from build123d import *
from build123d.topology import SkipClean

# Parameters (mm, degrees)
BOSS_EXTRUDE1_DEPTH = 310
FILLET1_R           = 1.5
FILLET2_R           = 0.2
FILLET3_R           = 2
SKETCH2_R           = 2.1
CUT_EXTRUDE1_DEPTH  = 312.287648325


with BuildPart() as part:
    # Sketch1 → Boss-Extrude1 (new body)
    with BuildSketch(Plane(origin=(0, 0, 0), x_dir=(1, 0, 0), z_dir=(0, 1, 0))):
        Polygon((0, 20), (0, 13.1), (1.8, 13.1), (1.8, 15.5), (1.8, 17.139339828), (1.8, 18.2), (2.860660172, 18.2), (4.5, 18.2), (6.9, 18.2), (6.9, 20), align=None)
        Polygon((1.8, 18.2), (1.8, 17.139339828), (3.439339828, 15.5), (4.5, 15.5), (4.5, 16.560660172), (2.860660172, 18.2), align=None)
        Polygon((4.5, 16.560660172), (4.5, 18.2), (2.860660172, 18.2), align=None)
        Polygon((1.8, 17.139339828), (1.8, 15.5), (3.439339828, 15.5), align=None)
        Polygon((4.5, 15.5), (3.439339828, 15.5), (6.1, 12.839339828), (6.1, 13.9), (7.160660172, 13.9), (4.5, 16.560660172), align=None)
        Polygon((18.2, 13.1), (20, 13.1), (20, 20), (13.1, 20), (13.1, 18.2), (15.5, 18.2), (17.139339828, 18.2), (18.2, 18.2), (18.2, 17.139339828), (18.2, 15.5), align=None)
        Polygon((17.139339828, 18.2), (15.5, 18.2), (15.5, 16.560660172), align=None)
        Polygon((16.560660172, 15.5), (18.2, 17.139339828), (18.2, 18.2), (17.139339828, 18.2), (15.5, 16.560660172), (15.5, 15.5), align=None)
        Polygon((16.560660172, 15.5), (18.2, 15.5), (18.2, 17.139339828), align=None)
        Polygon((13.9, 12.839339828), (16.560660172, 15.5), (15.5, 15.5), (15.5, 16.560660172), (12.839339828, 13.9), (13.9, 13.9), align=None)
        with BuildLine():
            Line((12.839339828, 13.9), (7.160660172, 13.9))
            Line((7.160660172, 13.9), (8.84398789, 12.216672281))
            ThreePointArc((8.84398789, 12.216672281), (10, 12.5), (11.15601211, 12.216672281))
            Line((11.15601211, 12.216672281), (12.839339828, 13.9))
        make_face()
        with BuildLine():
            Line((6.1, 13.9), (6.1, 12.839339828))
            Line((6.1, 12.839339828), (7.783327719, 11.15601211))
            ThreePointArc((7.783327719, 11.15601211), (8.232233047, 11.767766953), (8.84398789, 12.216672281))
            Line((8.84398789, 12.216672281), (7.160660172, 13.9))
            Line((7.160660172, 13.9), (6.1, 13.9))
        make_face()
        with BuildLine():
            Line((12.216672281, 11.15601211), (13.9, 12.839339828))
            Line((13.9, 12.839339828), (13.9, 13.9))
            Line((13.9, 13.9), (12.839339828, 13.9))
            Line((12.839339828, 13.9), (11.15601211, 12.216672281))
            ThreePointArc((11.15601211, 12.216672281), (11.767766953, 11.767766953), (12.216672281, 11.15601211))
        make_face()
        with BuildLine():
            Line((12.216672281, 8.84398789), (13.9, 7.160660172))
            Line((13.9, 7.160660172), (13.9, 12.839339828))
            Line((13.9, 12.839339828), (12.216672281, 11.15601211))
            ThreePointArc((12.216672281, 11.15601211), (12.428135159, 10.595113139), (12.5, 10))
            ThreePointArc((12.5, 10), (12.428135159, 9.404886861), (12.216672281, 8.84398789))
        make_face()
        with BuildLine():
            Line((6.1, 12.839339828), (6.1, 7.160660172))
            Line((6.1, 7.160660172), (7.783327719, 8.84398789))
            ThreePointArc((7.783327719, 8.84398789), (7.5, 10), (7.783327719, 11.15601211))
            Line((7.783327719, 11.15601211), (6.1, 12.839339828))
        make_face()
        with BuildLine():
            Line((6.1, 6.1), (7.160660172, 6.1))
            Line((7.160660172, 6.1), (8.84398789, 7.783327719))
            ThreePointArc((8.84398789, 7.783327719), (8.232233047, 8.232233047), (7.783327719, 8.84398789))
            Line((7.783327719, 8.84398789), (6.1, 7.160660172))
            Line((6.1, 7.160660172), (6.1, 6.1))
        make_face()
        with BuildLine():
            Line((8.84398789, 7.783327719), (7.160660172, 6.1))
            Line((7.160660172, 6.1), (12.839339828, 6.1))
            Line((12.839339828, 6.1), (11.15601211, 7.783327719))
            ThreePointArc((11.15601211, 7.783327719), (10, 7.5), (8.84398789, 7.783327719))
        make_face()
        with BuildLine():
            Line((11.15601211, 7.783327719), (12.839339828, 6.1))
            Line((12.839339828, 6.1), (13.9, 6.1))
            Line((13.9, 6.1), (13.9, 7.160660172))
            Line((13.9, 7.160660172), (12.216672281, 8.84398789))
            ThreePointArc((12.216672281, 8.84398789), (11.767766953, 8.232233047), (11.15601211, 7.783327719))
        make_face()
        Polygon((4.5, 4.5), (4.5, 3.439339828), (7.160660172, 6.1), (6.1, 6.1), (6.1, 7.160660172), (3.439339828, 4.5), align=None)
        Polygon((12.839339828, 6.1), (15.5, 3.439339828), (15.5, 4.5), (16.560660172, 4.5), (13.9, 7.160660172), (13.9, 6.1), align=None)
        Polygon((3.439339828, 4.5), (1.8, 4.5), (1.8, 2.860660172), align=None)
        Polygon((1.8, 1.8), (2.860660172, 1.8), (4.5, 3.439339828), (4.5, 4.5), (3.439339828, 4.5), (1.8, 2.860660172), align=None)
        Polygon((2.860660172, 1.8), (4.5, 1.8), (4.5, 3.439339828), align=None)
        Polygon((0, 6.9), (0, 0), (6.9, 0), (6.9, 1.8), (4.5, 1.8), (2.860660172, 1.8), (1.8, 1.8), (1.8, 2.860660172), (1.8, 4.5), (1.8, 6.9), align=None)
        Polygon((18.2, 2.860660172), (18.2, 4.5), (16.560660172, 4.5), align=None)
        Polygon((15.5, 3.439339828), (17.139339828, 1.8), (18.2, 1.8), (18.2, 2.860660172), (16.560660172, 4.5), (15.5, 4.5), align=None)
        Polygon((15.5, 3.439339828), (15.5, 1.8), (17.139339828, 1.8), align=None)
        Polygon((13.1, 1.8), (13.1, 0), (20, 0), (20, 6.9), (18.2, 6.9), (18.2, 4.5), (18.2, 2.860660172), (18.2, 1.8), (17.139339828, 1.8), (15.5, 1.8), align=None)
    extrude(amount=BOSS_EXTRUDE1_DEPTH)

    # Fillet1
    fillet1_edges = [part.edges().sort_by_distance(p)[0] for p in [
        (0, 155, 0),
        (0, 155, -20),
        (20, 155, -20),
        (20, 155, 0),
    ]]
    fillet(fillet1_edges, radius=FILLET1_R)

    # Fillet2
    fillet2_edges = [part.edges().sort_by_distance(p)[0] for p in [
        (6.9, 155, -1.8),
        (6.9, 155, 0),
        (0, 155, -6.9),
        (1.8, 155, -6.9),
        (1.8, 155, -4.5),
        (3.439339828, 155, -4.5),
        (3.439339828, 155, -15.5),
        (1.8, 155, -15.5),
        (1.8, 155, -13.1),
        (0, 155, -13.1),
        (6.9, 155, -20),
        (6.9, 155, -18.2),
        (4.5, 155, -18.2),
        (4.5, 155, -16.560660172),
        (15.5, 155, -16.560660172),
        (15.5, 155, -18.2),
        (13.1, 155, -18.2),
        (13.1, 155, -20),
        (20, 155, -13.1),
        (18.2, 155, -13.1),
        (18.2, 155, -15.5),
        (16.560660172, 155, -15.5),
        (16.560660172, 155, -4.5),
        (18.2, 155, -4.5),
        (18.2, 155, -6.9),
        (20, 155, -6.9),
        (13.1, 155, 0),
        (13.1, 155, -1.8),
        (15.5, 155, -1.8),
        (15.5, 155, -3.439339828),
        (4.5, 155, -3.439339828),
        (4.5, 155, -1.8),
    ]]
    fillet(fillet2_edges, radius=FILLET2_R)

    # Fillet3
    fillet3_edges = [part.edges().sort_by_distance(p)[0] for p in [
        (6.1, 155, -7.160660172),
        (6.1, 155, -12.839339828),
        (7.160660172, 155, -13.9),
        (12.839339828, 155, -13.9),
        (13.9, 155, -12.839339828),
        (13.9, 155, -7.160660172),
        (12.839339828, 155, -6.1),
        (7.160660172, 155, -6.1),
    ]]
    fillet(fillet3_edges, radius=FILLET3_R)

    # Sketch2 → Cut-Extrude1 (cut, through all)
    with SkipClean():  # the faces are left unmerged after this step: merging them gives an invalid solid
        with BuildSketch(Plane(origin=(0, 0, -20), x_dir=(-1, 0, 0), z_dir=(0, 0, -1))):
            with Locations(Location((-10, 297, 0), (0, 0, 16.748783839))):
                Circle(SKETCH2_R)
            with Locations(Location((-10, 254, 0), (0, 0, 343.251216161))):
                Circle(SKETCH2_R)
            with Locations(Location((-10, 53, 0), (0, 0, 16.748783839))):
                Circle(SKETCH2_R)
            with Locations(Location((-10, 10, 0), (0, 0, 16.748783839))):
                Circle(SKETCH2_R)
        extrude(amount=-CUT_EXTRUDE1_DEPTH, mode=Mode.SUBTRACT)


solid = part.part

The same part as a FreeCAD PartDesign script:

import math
import FreeCAD as App
import Part
import Sketcher

V = App.Vector
Q = App.Units.Quantity


def edges_at(feature, points):
    """Names of the edges that pass closest to the given points."""
    edges = feature.Shape.Edges
    near = lambda p: min(range(len(edges)), key=lambda i: edges[i].distToShape(Part.Vertex(*p))[0])
    return sorted({f"Edge{near(p) + 1}" for p in points})

doc = App.newDocument("Part")
params = doc.addObject("Spreadsheet::Sheet", "Params")
for row, (alias, value) in enumerate([
    ("sketch1_radius", "2.5 mm"),
    ("sketch1_width", "1.8 mm"),
    ("sketch1_width2", "6.9 mm"),
    ("sketch1_width3", "2.4 mm"),
    ("pad1_length", "310 mm"),
    ("fillet_radius", "1.5 mm"),
    ("fillet2_radius", "0.2 mm"),
    ("fillet3_radius", "2 mm"),
    ("sketch2_diameter", "4.2 mm"),
], start=1):
    params.set(f"A{row}", alias)
    params.set(f"B{row}", "=" + value)
    params.setAlias(f"B{row}", alias)

body = doc.addObject("PartDesign::Body", "Body")

# Sketch on XZ plane
sketch1 = doc.addObject("Sketcher::SketchObject", "Sketch")
body.addObject(sketch1)
sketch1.AttachmentSupport = (doc.XZ_Plane, [""])
sketch1.MapMode = "FlatFace"
sketch1.addGeometry(Part.LineSegment(V(0, -20, 0), V(0, -13.1, 0)), False)
sketch1.addGeometry(Part.LineSegment(V(0, -13.1, 0), V(1.8, -13.1, 0)), False)
sketch1.addGeometry(Part.LineSegment(V(1.8, -13.1, 0), V(1.8, -15.5, 0)), False)
sketch1.addGeometry(Part.LineSegment(V(1.8, -15.5, 0), V(3.4, -15.5, 0)), False)
sketch1.addGeometry(Part.LineSegment(V(3.4, -15.5, 0), V(6.1, -12.8, 0)), False)
sketch1.addGeometry(Part.LineSegment(V(6.1, -12.8, 0), V(6.1, -7.2, 0)), False)
sketch1.addGeometry(Part.LineSegment(V(6.1, -7.2, 0), V(3.4, -4.5, 0)), False)
sketch1.addGeometry(Part.LineSegment(V(3.4, -4.5, 0), V(1.8, -4.5, 0)), False)
sketch1.addGeometry(Part.LineSegment(V(1.8, -4.5, 0), V(1.8, -6.9, 0)), False)
sketch1.addGeometry(Part.LineSegment(V(1.8, -6.9, 0), V(0, -6.9, 0)), False)
sketch1.addGeometry(Part.LineSegment(V(0, -6.9, 0), V(0, 0, 0)), False)
sketch1.addGeometry(Part.LineSegment(V(0, 0, 0), V(6.9, 0, 0)), False)
sketch1.addGeometry(Part.LineSegment(V(6.9, 0, 0), V(6.9, -1.8, 0)), False)
sketch1.addGeometry(Part.LineSegment(V(6.9, -1.8, 0), V(4.5, -1.8, 0)), False)
sketch1.addGeometry(Part.LineSegment(V(4.5, -1.8, 0), V(4.5, -3.4, 0)), False)
sketch1.addGeometry(Part.LineSegment(V(4.5, -3.4, 0), V(7.2, -6.1, 0)), False)
sketch1.addGeometry(Part.LineSegment(V(7.2, -6.1, 0), V(12.8, -6.1, 0)), False)
sketch1.addGeometry(Part.LineSegment(V(12.8, -6.1, 0), V(15.5, -3.4, 0)), False)
sketch1.addGeometry(Part.LineSegment(V(15.5, -3.4, 0), V(15.5, -1.8, 0)), False)
sketch1.addGeometry(Part.LineSegment(V(15.5, -1.8, 0), V(13.1, -1.8, 0)), False)
sketch1.addGeometry(Part.LineSegment(V(13.1, -1.8, 0), V(13.1, 0, 0)), False)
sketch1.addGeometry(Part.LineSegment(V(13.1, 0, 0), V(20, 0, 0)), False)
sketch1.addGeometry(Part.LineSegment(V(20, 0, 0), V(20, -6.9, 0)), False)
sketch1.addGeometry(Part.LineSegment(V(20, -6.9, 0), V(18.2, -6.9, 0)), False)
sketch1.addGeometry(Part.LineSegment(V(18.2, -6.9, 0), V(18.2, -4.5, 0)), False)
sketch1.addGeometry(Part.LineSegment(V(18.2, -4.5, 0), V(16.6, -4.5, 0)), False)
sketch1.addGeometry(Part.LineSegment(V(16.6, -4.5, 0), V(13.9, -7.2, 0)), False)
sketch1.addGeometry(Part.LineSegment(V(13.9, -7.2, 0), V(13.9, -12.8, 0)), False)
sketch1.addGeometry(Part.LineSegment(V(13.9, -12.8, 0), V(16.6, -15.5, 0)), False)
sketch1.addGeometry(Part.LineSegment(V(16.6, -15.5, 0), V(18.2, -15.5, 0)), False)
sketch1.addGeometry(Part.LineSegment(V(18.2, -15.5, 0), V(18.2, -13.1, 0)), False)
sketch1.addGeometry(Part.LineSegment(V(18.2, -13.1, 0), V(20, -13.1, 0)), False)
sketch1.addGeometry(Part.LineSegment(V(20, -13.1, 0), V(20, -20, 0)), False)
sketch1.addGeometry(Part.LineSegment(V(20, -20, 0), V(13.1, -20, 0)), False)
sketch1.addGeometry(Part.LineSegment(V(13.1, -20, 0), V(13.1, -18.2, 0)), False)
sketch1.addGeometry(Part.LineSegment(V(13.1, -18.2, 0), V(15.5, -18.2, 0)), False)
sketch1.addGeometry(Part.LineSegment(V(15.5, -18.2, 0), V(15.5, -16.6, 0)), False)
sketch1.addGeometry(Part.LineSegment(V(15.5, -16.6, 0), V(12.8, -13.9, 0)), False)
sketch1.addGeometry(Part.LineSegment(V(12.8, -13.9, 0), V(7.2, -13.9, 0)), False)
sketch1.addGeometry(Part.LineSegment(V(7.2, -13.9, 0), V(4.5, -16.6, 0)), False)
sketch1.addGeometry(Part.LineSegment(V(4.5, -16.6, 0), V(4.5, -18.2, 0)), False)
sketch1.addGeometry(Part.LineSegment(V(4.5, -18.2, 0), V(6.9, -18.2, 0)), False)
sketch1.addGeometry(Part.LineSegment(V(6.9, -18.2, 0), V(6.9, -20, 0)), False)
sketch1.addGeometry(Part.LineSegment(V(6.9, -20, 0), V(0, -20, 0)), False)
sketch1.addGeometry(Part.ArcOfCircle(Part.Circle(V(10, -10, 0), V(0, 0, 1), 2.5), math.radians(62), math.radians(118)), False)
sketch1.addGeometry(Part.ArcOfCircle(Part.Circle(V(10, -10, 0), V(0, 0, 1), 2.5), math.radians(118), math.radians(152)), False)
sketch1.addGeometry(Part.ArcOfCircle(Part.Circle(V(10, -10, 0), V(0, 0, 1), 2.5), math.radians(152), math.radians(208)), False)
sketch1.addGeometry(Part.ArcOfCircle(Part.Circle(V(10, -10, 0), V(0, 0, 1), 2.5), math.radians(-152), math.radians(-118)), False)
sketch1.addGeometry(Part.ArcOfCircle(Part.Circle(V(10, -10, 0), V(0, 0, 1), 2.5), math.radians(-118), math.radians(-62)), False)
sketch1.addGeometry(Part.ArcOfCircle(Part.Circle(V(10, -10, 0), V(0, 0, 1), 2.5), math.radians(-62), math.radians(-28)), False)
sketch1.addGeometry(Part.ArcOfCircle(Part.Circle(V(10, -10, 0), V(0, 0, 1), 2.5), math.radians(-28), math.radians(0)), False)
sketch1.addGeometry(Part.ArcOfCircle(Part.Circle(V(10, -10, 0), V(0, 0, 1), 2.5), math.radians(0), math.radians(28)), False)
sketch1.addGeometry(Part.ArcOfCircle(Part.Circle(V(10, -10, 0), V(0, 0, 1), 2.5), math.radians(28), math.radians(62)), False)
sketch1.addConstraint(Sketcher.Constraint("Coincident", 0, 2, 1, 1))
sketch1.addConstraint(Sketcher.Constraint("Coincident", 1, 2, 2, 1))
sketch1.addConstraint(Sketcher.Constraint("Coincident", 2, 2, 3, 1))
sketch1.addConstraint(Sketcher.Constraint("Coincident", 3, 2, 4, 1))
sketch1.addConstraint(Sketcher.Constraint("Coincident", 4, 2, 5, 1))
sketch1.addConstraint(Sketcher.Constraint("Coincident", 5, 2, 6, 1))
sketch1.addConstraint(Sketcher.Constraint("Coincident", 6, 2, 7, 1))
sketch1.addConstraint(Sketcher.Constraint("Coincident", 7, 2, 8, 1))
sketch1.addConstraint(Sketcher.Constraint("Coincident", 8, 2, 9, 1))
sketch1.addConstraint(Sketcher.Constraint("Coincident", 9, 2, 10, 1))
sketch1.addConstraint(Sketcher.Constraint("Coincident", 10, 2, 11, 1))
sketch1.addConstraint(Sketcher.Constraint("Coincident", 11, 2, 12, 1))
sketch1.addConstraint(Sketcher.Constraint("Coincident", 12, 2, 13, 1))
sketch1.addConstraint(Sketcher.Constraint("Coincident", 13, 2, 14, 1))
sketch1.addConstraint(Sketcher.Constraint("Coincident", 14, 2, 15, 1))
sketch1.addConstraint(Sketcher.Constraint("Coincident", 15, 2, 16, 1))
sketch1.addConstraint(Sketcher.Constraint("Coincident", 16, 2, 17, 1))
sketch1.addConstraint(Sketcher.Constraint("Coincident", 17, 2, 18, 1))
sketch1.addConstraint(Sketcher.Constraint("Coincident", 18, 2, 19, 1))
sketch1.addConstraint(Sketcher.Constraint("Coincident", 19, 2, 20, 1))
sketch1.addConstraint(Sketcher.Constraint("Coincident", 20, 2, 21, 1))
sketch1.addConstraint(Sketcher.Constraint("Coincident", 21, 2, 22, 1))
sketch1.addConstraint(Sketcher.Constraint("Coincident", 22, 2, 23, 1))
sketch1.addConstraint(Sketcher.Constraint("Coincident", 23, 2, 24, 1))
sketch1.addConstraint(Sketcher.Constraint("Coincident", 24, 2, 25, 1))
sketch1.addConstraint(Sketcher.Constraint("Coincident", 25, 2, 26, 1))
sketch1.addConstraint(Sketcher.Constraint("Coincident", 26, 2, 27, 1))
sketch1.addConstraint(Sketcher.Constraint("Coincident", 27, 2, 28, 1))
sketch1.addConstraint(Sketcher.Constraint("Coincident", 28, 2, 29, 1))
sketch1.addConstraint(Sketcher.Constraint("Coincident", 29, 2, 30, 1))
sketch1.addConstraint(Sketcher.Constraint("Coincident", 30, 2, 31, 1))
sketch1.addConstraint(Sketcher.Constraint("Coincident", 31, 2, 32, 1))
sketch1.addConstraint(Sketcher.Constraint("Coincident", 32, 2, 33, 1))
sketch1.addConstraint(Sketcher.Constraint("Coincident", 33, 2, 34, 1))
sketch1.addConstraint(Sketcher.Constraint("Coincident", 34, 2, 35, 1))
sketch1.addConstraint(Sketcher.Constraint("Coincident", 35, 2, 36, 1))
sketch1.addConstraint(Sketcher.Constraint("Coincident", 36, 2, 37, 1))
sketch1.addConstraint(Sketcher.Constraint("Coincident", 37, 2, 38, 1))
sketch1.addConstraint(Sketcher.Constraint("Coincident", 38, 2, 39, 1))
sketch1.addConstraint(Sketcher.Constraint("Coincident", 39, 2, 40, 1))
sketch1.addConstraint(Sketcher.Constraint("Coincident", 40, 2, 41, 1))
sketch1.addConstraint(Sketcher.Constraint("Coincident", 41, 2, 42, 1))
sketch1.addConstraint(Sketcher.Constraint("Coincident", 42, 2, 43, 1))
sketch1.addConstraint(Sketcher.Constraint("Coincident", 43, 2, 0, 1))
sketch1.addConstraint(Sketcher.Constraint("Tangent", 44, 2, 45, 1))
sketch1.addConstraint(Sketcher.Constraint("Tangent", 45, 2, 46, 1))
sketch1.addConstraint(Sketcher.Constraint("Tangent", 46, 2, 47, 1))
sketch1.addConstraint(Sketcher.Constraint("Tangent", 47, 2, 48, 1))
sketch1.addConstraint(Sketcher.Constraint("Tangent", 48, 2, 49, 1))
sketch1.addConstraint(Sketcher.Constraint("Tangent", 49, 2, 50, 1))
sketch1.addConstraint(Sketcher.Constraint("Tangent", 50, 2, 51, 1))
sketch1.addConstraint(Sketcher.Constraint("Tangent", 51, 2, 52, 1))
sketch1.addConstraint(Sketcher.Constraint("Tangent", 52, 2, 44, 1))
sketch1.addConstraint(Sketcher.Constraint("Vertical", 0))
sketch1.addConstraint(Sketcher.Constraint("Horizontal", 1))
sketch1.addConstraint(Sketcher.Constraint("Vertical", 2))
sketch1.addConstraint(Sketcher.Constraint("Horizontal", 3))
sketch1.addConstraint(Sketcher.Constraint("Vertical", 5))
sketch1.addConstraint(Sketcher.Constraint("Horizontal", 7))
sketch1.addConstraint(Sketcher.Constraint("Vertical", 8))
sketch1.addConstraint(Sketcher.Constraint("Horizontal", 9))
sketch1.addConstraint(Sketcher.Constraint("Vertical", 10))
sketch1.addConstraint(Sketcher.Constraint("Horizontal", 11))
sketch1.addConstraint(Sketcher.Constraint("Vertical", 12))
sketch1.addConstraint(Sketcher.Constraint("Horizontal", 13))
sketch1.addConstraint(Sketcher.Constraint("Vertical", 14))
sketch1.addConstraint(Sketcher.Constraint("Horizontal", 16))
sketch1.addConstraint(Sketcher.Constraint("Vertical", 18))
sketch1.addConstraint(Sketcher.Constraint("Horizontal", 19))
sketch1.addConstraint(Sketcher.Constraint("Vertical", 20))
sketch1.addConstraint(Sketcher.Constraint("Horizontal", 21))
sketch1.addConstraint(Sketcher.Constraint("Vertical", 22))
sketch1.addConstraint(Sketcher.Constraint("Horizontal", 23))
sketch1.addConstraint(Sketcher.Constraint("Vertical", 24))
sketch1.addConstraint(Sketcher.Constraint("Horizontal", 25))
sketch1.addConstraint(Sketcher.Constraint("Vertical", 27))
sketch1.addConstraint(Sketcher.Constraint("Horizontal", 29))
sketch1.addConstraint(Sketcher.Constraint("Vertical", 30))
sketch1.addConstraint(Sketcher.Constraint("Horizontal", 31))
sketch1.addConstraint(Sketcher.Constraint("Vertical", 32))
sketch1.addConstraint(Sketcher.Constraint("Horizontal", 33))
sketch1.addConstraint(Sketcher.Constraint("Vertical", 34))
sketch1.addConstraint(Sketcher.Constraint("Horizontal", 35))
sketch1.addConstraint(Sketcher.Constraint("Vertical", 36))
sketch1.addConstraint(Sketcher.Constraint("Horizontal", 38))
sketch1.addConstraint(Sketcher.Constraint("Vertical", 40))
sketch1.addConstraint(Sketcher.Constraint("Horizontal", 41))
sketch1.addConstraint(Sketcher.Constraint("Vertical", 42))
sketch1.addConstraint(Sketcher.Constraint("Horizontal", 43))
sketch1.addConstraint(Sketcher.Constraint("Coincident", 10, 2, -1, 1))
sketch1.addConstraint(Sketcher.Constraint("Coincident", 46, 3, 44, 3))
sketch1.addConstraint(Sketcher.Constraint("Coincident", 48, 3, 44, 3))
sketch1.addConstraint(Sketcher.Constraint("Coincident", 50, 3, 44, 3))
sketch1.addConstraint(Sketcher.Constraint("PointOnObject", 0, 2, -2))
sketch1.addConstraint(Sketcher.Constraint("PointOnObject", 20, 2, -1))
sketch1.addConstraint(Sketcher.Constraint("Perpendicular", 4, 6))
sketch1.addConstraint(Sketcher.Constraint("Parallel", 6, 15))
sketch1.addConstraint(Sketcher.Constraint("Perpendicular", 15, 17))
sketch1.addConstraint(Sketcher.Constraint("Parallel", 17, 26))
sketch1.addConstraint(Sketcher.Constraint("Perpendicular", 26, 28))
sketch1.addConstraint(Sketcher.Constraint("Parallel", 28, 37))
sketch1.addConstraint(Sketcher.Constraint("Perpendicular", 37, 39))
sketch1.addConstraint(Sketcher.Constraint("Horizontal", 14, 2, 17, 2))
sketch1.addConstraint(Sketcher.Constraint("Horizontal", 13, 2, 18, 2))
sketch1.addConstraint(Sketcher.Constraint("Horizontal", 9, 2, 22, 2))
sketch1.addConstraint(Sketcher.Constraint("Horizontal", 7, 2, 24, 2))
sketch1.addConstraint(Sketcher.Constraint("Horizontal", 5, 2, 26, 2))
sketch1.addConstraint(Sketcher.Constraint("Horizontal", 4, 2, 27, 2))
sketch1.addConstraint(Sketcher.Constraint("Horizontal", 3, 2, 28, 2))
sketch1.addConstraint(Sketcher.Constraint("Horizontal", 1, 2, 30, 2))
sketch1.addConstraint(Sketcher.Constraint("Horizontal", 36, 2, 39, 2))
sketch1.addConstraint(Sketcher.Constraint("Horizontal", 35, 2, 40, 2))
sketch1.addConstraint(Sketcher.Constraint("Horizontal", 33, 2, 42, 2))
sketch1.addConstraint(Sketcher.Constraint("Horizontal", 47, 2, 48, 2))
sketch1.addConstraint(Sketcher.Constraint("Horizontal", 46, 2, 49, 2))
sketch1.addConstraint(Sketcher.Constraint("Horizontal", 52, 3, 50, 2))
sketch1.addConstraint(Sketcher.Constraint("Horizontal", 45, 2, 51, 2))
sketch1.addConstraint(Sketcher.Constraint("Horizontal", 44, 2, 52, 2))
sketch1.addConstraint(Sketcher.Constraint("Vertical", 3, 2, 6, 2))
sketch1.addConstraint(Sketcher.Constraint("Vertical", 2, 2, 7, 2))
sketch1.addConstraint(Sketcher.Constraint("Vertical", 25, 2, 28, 2))
sketch1.addConstraint(Sketcher.Constraint("Vertical", 24, 2, 29, 2))
sketch1.addConstraint(Sketcher.Constraint("Vertical", 22, 2, 31, 2))
sketch1.addConstraint(Sketcher.Constraint("Vertical", 20, 2, 33, 2))
sketch1.addConstraint(Sketcher.Constraint("Vertical", 18, 2, 35, 2))
sketch1.addConstraint(Sketcher.Constraint("Vertical", 16, 2, 37, 2))
sketch1.addConstraint(Sketcher.Constraint("Vertical", 15, 2, 38, 2))
sketch1.addConstraint(Sketcher.Constraint("Vertical", 12, 2, 41, 2))
sketch1.addConstraint(Sketcher.Constraint("Vertical", 45, 2, 46, 2))
sketch1.addConstraint(Sketcher.Constraint("Vertical", 44, 2, 47, 2))
sketch1.addConstraint(Sketcher.Constraint("Equal", 13, 19))
sketch1.addConstraint(Sketcher.Constraint("Equal", 11, 21))
sketch1.addConstraint(Sketcher.Constraint("Equal", 9, 23))
sketch1.addConstraint(Sketcher.Constraint("Equal", 7, 25))
sketch1.addConstraint(Sketcher.Constraint("Equal", 43, 0))
sketch1.addConstraint(Sketcher.Constraint("Equal", 41, 2))
sketch1.addConstraint(Sketcher.Constraint("Equal", 38, 5))
sketch1.addConstraint(Sketcher.Constraint("Equal", 2, 8))
sketch1.addConstraint(Sketcher.Constraint("Equal", 0, 10))
sketch1.addConstraint(Sketcher.Constraint("Equal", 31, 12))
sketch1.addConstraint(Sketcher.Constraint("Equal", 29, 14))
sketch1.addConstraint(Sketcher.Constraint("Equal", 20, 34))
sketch1.addConstraint(Sketcher.Constraint("Equal", 18, 36))
sketch1.addConstraint(Sketcher.Constraint("Equal", 6, 15))
sketch1.addConstraint(Sketcher.Constraint("Radius", 44, Q("2.5 mm")))
sketch1.addConstraint(Sketcher.Constraint("DistanceX", 1, 1, 1, 2, Q("1.8 mm")))
sketch1.addConstraint(Sketcher.Constraint("DistanceX", 11, 1, 11, 2, Q("6.9 mm")))
sketch1.addConstraint(Sketcher.Constraint("DistanceX", 13, 2, 13, 1, Q("2.4 mm")))
sketch1.addConstraint(Sketcher.Constraint("DistanceX", -1, 1, 44, 3, Q("10 mm")))
sketch1.addConstraint(Sketcher.Constraint("DistanceY", 44, 3, -1, 1, Q("10 mm")))
sketch1.addConstraint(Sketcher.Constraint("DistanceX", -1, 1, 21, 2, Q("20 mm")))
sketch1.addConstraint(Sketcher.Constraint("DistanceX", -1, 1, 4, 2, Q("6.1 mm")))
sketch1.addConstraint(Sketcher.Constraint("DistanceX", 3, 1, 3, 2, Q("1.63934 mm")))
sketch1.addConstraint(Sketcher.Constraint("DistanceX", -1, 1, 44, 2, Q("8.843988 mm")))
sketch1.addConstraint(Sketcher.Constraint("DistanceX", -1, 1, 45, 2, Q("7.783328 mm")))
sketch1.setExpression("Constraints[144]", "Params.sketch1_radius")
sketch1.setExpression("Constraints[145]", "Params.sketch1_width")
sketch1.setExpression("Constraints[146]", "Params.sketch1_width2")
sketch1.setExpression("Constraints[147]", "Params.sketch1_width3")
pad1 = doc.addObject("PartDesign::Pad", "Pad")
body.addObject(pad1)
pad1.Profile = sketch1
pad1.setExpression("Length", "Params.pad1_length")
pad1.Reversed = True
doc.recompute()

fillet = doc.addObject("PartDesign::Fillet", "Fillet")
body.addObject(fillet)
fillet.Base = (pad1, edges_at(pad1, [
    (0, 155, 0),
    (0, 155, -20),
    (20, 155, -20),
    (20, 155, 0),
]))
fillet.setExpression("Radius", "Params.fillet_radius")
doc.recompute()

fillet2 = doc.addObject("PartDesign::Fillet", "Fillet001")
body.addObject(fillet2)
fillet2.Base = (fillet, edges_at(fillet, [
    (6.9, 155, -1.8),
    (6.9, 155, 0),
    (0, 155, -6.9),
    (1.8, 155, -6.9),
    (1.8, 155, -4.5),
    (3.439, 155, -4.5),
    (3.439, 155, -15.5),
    (1.8, 155, -15.5),
    (1.8, 155, -13.1),
    (0, 155, -13.1),
    (6.9, 155, -20),
    (6.9, 155, -18.2),
    (4.5, 155, -18.2),
    (4.5, 155, -16.561),
    (15.5, 155, -16.561),
    (15.5, 155, -18.2),
    (13.1, 155, -18.2),
    (13.1, 155, -20),
    (20, 155, -13.1),
    (18.2, 155, -13.1),
    (18.2, 155, -15.5),
    (16.561, 155, -15.5),
    (16.561, 155, -4.5),
    (18.2, 155, -4.5),
    (18.2, 155, -6.9),
    (20, 155, -6.9),
    (13.1, 155, 0),
    (13.1, 155, -1.8),
    (15.5, 155, -1.8),
    (15.5, 155, -3.439),
    (4.5, 155, -3.439),
    (4.5, 155, -1.8),
]))
fillet2.setExpression("Radius", "Params.fillet2_radius")
doc.recompute()

fillet3 = doc.addObject("PartDesign::Fillet", "Fillet002")
body.addObject(fillet3)
fillet3.Base = (fillet2, edges_at(fillet2, [
    (6.1, 155, -7.161),
    (6.1, 155, -12.839),
    (7.161, 155, -13.9),
    (12.839, 155, -13.9),
    (13.9, 155, -12.839),
    (13.9, 155, -7.161),
    (12.839, 155, -6.1),
    (7.161, 155, -6.1),
]))
fillet3.setExpression("Radius", "Params.fillet3_radius")

# Sketch on XY plane
sketch2 = doc.addObject("Sketcher::SketchObject", "Sketch001")
body.addObject(sketch2)
sketch2.AttachmentSupport = (doc.XY_Plane, [""])
sketch2.MapMode = "FlatFace"
sketch2.AttachmentOffset = App.Placement(V(0, 0, -20), App.Rotation())
sketch2.addGeometry(Part.Circle(V(10, 297, 0), V(0, 0, 1), 2.1), False)
sketch2.addGeometry(Part.Circle(V(10, 254, 0), V(0, 0, 1), 2.1), False)
sketch2.addGeometry(Part.Circle(V(10, 53, 0), V(0, 0, 1), 2.1), False)
sketch2.addGeometry(Part.Circle(V(10, 10, 0), V(0, 0, 1), 2.1), False)
sketch2.addConstraint(Sketcher.Constraint("Equal", 0, 1))
sketch2.addConstraint(Sketcher.Constraint("Equal", 1, 2))
sketch2.addConstraint(Sketcher.Constraint("Equal", 2, 3))
sketch2.addConstraint(Sketcher.Constraint("Vertical", 0, 3, 1, 3))
sketch2.addConstraint(Sketcher.Constraint("Vertical", 1, 3, 2, 3))
sketch2.addConstraint(Sketcher.Constraint("Vertical", 2, 3, 3, 3))
sketch2.addConstraint(Sketcher.Constraint("Diameter", 0, Q("4.2 mm")))
sketch2.addConstraint(Sketcher.Constraint("DistanceX", -1, 1, 0, 3, Q("10 mm")))
sketch2.addConstraint(Sketcher.Constraint("DistanceY", -1, 1, 0, 3, Q("297 mm")))
sketch2.addConstraint(Sketcher.Constraint("DistanceY", -1, 1, 1, 3, Q("254 mm")))
sketch2.addConstraint(Sketcher.Constraint("DistanceY", -1, 1, 2, 3, Q("53 mm")))
sketch2.addConstraint(Sketcher.Constraint("DistanceY", -1, 1, 3, 3, Q("10 mm")))
sketch2.setExpression("Constraints[6]", "Params.sketch2_diameter")
pocket1 = doc.addObject("PartDesign::Pocket", "Pocket")
body.addObject(pocket1)
pocket1.Profile = sketch2
pocket1.Type = "ThroughAll"
pocket1.Reversed = True

doc.recompute()
